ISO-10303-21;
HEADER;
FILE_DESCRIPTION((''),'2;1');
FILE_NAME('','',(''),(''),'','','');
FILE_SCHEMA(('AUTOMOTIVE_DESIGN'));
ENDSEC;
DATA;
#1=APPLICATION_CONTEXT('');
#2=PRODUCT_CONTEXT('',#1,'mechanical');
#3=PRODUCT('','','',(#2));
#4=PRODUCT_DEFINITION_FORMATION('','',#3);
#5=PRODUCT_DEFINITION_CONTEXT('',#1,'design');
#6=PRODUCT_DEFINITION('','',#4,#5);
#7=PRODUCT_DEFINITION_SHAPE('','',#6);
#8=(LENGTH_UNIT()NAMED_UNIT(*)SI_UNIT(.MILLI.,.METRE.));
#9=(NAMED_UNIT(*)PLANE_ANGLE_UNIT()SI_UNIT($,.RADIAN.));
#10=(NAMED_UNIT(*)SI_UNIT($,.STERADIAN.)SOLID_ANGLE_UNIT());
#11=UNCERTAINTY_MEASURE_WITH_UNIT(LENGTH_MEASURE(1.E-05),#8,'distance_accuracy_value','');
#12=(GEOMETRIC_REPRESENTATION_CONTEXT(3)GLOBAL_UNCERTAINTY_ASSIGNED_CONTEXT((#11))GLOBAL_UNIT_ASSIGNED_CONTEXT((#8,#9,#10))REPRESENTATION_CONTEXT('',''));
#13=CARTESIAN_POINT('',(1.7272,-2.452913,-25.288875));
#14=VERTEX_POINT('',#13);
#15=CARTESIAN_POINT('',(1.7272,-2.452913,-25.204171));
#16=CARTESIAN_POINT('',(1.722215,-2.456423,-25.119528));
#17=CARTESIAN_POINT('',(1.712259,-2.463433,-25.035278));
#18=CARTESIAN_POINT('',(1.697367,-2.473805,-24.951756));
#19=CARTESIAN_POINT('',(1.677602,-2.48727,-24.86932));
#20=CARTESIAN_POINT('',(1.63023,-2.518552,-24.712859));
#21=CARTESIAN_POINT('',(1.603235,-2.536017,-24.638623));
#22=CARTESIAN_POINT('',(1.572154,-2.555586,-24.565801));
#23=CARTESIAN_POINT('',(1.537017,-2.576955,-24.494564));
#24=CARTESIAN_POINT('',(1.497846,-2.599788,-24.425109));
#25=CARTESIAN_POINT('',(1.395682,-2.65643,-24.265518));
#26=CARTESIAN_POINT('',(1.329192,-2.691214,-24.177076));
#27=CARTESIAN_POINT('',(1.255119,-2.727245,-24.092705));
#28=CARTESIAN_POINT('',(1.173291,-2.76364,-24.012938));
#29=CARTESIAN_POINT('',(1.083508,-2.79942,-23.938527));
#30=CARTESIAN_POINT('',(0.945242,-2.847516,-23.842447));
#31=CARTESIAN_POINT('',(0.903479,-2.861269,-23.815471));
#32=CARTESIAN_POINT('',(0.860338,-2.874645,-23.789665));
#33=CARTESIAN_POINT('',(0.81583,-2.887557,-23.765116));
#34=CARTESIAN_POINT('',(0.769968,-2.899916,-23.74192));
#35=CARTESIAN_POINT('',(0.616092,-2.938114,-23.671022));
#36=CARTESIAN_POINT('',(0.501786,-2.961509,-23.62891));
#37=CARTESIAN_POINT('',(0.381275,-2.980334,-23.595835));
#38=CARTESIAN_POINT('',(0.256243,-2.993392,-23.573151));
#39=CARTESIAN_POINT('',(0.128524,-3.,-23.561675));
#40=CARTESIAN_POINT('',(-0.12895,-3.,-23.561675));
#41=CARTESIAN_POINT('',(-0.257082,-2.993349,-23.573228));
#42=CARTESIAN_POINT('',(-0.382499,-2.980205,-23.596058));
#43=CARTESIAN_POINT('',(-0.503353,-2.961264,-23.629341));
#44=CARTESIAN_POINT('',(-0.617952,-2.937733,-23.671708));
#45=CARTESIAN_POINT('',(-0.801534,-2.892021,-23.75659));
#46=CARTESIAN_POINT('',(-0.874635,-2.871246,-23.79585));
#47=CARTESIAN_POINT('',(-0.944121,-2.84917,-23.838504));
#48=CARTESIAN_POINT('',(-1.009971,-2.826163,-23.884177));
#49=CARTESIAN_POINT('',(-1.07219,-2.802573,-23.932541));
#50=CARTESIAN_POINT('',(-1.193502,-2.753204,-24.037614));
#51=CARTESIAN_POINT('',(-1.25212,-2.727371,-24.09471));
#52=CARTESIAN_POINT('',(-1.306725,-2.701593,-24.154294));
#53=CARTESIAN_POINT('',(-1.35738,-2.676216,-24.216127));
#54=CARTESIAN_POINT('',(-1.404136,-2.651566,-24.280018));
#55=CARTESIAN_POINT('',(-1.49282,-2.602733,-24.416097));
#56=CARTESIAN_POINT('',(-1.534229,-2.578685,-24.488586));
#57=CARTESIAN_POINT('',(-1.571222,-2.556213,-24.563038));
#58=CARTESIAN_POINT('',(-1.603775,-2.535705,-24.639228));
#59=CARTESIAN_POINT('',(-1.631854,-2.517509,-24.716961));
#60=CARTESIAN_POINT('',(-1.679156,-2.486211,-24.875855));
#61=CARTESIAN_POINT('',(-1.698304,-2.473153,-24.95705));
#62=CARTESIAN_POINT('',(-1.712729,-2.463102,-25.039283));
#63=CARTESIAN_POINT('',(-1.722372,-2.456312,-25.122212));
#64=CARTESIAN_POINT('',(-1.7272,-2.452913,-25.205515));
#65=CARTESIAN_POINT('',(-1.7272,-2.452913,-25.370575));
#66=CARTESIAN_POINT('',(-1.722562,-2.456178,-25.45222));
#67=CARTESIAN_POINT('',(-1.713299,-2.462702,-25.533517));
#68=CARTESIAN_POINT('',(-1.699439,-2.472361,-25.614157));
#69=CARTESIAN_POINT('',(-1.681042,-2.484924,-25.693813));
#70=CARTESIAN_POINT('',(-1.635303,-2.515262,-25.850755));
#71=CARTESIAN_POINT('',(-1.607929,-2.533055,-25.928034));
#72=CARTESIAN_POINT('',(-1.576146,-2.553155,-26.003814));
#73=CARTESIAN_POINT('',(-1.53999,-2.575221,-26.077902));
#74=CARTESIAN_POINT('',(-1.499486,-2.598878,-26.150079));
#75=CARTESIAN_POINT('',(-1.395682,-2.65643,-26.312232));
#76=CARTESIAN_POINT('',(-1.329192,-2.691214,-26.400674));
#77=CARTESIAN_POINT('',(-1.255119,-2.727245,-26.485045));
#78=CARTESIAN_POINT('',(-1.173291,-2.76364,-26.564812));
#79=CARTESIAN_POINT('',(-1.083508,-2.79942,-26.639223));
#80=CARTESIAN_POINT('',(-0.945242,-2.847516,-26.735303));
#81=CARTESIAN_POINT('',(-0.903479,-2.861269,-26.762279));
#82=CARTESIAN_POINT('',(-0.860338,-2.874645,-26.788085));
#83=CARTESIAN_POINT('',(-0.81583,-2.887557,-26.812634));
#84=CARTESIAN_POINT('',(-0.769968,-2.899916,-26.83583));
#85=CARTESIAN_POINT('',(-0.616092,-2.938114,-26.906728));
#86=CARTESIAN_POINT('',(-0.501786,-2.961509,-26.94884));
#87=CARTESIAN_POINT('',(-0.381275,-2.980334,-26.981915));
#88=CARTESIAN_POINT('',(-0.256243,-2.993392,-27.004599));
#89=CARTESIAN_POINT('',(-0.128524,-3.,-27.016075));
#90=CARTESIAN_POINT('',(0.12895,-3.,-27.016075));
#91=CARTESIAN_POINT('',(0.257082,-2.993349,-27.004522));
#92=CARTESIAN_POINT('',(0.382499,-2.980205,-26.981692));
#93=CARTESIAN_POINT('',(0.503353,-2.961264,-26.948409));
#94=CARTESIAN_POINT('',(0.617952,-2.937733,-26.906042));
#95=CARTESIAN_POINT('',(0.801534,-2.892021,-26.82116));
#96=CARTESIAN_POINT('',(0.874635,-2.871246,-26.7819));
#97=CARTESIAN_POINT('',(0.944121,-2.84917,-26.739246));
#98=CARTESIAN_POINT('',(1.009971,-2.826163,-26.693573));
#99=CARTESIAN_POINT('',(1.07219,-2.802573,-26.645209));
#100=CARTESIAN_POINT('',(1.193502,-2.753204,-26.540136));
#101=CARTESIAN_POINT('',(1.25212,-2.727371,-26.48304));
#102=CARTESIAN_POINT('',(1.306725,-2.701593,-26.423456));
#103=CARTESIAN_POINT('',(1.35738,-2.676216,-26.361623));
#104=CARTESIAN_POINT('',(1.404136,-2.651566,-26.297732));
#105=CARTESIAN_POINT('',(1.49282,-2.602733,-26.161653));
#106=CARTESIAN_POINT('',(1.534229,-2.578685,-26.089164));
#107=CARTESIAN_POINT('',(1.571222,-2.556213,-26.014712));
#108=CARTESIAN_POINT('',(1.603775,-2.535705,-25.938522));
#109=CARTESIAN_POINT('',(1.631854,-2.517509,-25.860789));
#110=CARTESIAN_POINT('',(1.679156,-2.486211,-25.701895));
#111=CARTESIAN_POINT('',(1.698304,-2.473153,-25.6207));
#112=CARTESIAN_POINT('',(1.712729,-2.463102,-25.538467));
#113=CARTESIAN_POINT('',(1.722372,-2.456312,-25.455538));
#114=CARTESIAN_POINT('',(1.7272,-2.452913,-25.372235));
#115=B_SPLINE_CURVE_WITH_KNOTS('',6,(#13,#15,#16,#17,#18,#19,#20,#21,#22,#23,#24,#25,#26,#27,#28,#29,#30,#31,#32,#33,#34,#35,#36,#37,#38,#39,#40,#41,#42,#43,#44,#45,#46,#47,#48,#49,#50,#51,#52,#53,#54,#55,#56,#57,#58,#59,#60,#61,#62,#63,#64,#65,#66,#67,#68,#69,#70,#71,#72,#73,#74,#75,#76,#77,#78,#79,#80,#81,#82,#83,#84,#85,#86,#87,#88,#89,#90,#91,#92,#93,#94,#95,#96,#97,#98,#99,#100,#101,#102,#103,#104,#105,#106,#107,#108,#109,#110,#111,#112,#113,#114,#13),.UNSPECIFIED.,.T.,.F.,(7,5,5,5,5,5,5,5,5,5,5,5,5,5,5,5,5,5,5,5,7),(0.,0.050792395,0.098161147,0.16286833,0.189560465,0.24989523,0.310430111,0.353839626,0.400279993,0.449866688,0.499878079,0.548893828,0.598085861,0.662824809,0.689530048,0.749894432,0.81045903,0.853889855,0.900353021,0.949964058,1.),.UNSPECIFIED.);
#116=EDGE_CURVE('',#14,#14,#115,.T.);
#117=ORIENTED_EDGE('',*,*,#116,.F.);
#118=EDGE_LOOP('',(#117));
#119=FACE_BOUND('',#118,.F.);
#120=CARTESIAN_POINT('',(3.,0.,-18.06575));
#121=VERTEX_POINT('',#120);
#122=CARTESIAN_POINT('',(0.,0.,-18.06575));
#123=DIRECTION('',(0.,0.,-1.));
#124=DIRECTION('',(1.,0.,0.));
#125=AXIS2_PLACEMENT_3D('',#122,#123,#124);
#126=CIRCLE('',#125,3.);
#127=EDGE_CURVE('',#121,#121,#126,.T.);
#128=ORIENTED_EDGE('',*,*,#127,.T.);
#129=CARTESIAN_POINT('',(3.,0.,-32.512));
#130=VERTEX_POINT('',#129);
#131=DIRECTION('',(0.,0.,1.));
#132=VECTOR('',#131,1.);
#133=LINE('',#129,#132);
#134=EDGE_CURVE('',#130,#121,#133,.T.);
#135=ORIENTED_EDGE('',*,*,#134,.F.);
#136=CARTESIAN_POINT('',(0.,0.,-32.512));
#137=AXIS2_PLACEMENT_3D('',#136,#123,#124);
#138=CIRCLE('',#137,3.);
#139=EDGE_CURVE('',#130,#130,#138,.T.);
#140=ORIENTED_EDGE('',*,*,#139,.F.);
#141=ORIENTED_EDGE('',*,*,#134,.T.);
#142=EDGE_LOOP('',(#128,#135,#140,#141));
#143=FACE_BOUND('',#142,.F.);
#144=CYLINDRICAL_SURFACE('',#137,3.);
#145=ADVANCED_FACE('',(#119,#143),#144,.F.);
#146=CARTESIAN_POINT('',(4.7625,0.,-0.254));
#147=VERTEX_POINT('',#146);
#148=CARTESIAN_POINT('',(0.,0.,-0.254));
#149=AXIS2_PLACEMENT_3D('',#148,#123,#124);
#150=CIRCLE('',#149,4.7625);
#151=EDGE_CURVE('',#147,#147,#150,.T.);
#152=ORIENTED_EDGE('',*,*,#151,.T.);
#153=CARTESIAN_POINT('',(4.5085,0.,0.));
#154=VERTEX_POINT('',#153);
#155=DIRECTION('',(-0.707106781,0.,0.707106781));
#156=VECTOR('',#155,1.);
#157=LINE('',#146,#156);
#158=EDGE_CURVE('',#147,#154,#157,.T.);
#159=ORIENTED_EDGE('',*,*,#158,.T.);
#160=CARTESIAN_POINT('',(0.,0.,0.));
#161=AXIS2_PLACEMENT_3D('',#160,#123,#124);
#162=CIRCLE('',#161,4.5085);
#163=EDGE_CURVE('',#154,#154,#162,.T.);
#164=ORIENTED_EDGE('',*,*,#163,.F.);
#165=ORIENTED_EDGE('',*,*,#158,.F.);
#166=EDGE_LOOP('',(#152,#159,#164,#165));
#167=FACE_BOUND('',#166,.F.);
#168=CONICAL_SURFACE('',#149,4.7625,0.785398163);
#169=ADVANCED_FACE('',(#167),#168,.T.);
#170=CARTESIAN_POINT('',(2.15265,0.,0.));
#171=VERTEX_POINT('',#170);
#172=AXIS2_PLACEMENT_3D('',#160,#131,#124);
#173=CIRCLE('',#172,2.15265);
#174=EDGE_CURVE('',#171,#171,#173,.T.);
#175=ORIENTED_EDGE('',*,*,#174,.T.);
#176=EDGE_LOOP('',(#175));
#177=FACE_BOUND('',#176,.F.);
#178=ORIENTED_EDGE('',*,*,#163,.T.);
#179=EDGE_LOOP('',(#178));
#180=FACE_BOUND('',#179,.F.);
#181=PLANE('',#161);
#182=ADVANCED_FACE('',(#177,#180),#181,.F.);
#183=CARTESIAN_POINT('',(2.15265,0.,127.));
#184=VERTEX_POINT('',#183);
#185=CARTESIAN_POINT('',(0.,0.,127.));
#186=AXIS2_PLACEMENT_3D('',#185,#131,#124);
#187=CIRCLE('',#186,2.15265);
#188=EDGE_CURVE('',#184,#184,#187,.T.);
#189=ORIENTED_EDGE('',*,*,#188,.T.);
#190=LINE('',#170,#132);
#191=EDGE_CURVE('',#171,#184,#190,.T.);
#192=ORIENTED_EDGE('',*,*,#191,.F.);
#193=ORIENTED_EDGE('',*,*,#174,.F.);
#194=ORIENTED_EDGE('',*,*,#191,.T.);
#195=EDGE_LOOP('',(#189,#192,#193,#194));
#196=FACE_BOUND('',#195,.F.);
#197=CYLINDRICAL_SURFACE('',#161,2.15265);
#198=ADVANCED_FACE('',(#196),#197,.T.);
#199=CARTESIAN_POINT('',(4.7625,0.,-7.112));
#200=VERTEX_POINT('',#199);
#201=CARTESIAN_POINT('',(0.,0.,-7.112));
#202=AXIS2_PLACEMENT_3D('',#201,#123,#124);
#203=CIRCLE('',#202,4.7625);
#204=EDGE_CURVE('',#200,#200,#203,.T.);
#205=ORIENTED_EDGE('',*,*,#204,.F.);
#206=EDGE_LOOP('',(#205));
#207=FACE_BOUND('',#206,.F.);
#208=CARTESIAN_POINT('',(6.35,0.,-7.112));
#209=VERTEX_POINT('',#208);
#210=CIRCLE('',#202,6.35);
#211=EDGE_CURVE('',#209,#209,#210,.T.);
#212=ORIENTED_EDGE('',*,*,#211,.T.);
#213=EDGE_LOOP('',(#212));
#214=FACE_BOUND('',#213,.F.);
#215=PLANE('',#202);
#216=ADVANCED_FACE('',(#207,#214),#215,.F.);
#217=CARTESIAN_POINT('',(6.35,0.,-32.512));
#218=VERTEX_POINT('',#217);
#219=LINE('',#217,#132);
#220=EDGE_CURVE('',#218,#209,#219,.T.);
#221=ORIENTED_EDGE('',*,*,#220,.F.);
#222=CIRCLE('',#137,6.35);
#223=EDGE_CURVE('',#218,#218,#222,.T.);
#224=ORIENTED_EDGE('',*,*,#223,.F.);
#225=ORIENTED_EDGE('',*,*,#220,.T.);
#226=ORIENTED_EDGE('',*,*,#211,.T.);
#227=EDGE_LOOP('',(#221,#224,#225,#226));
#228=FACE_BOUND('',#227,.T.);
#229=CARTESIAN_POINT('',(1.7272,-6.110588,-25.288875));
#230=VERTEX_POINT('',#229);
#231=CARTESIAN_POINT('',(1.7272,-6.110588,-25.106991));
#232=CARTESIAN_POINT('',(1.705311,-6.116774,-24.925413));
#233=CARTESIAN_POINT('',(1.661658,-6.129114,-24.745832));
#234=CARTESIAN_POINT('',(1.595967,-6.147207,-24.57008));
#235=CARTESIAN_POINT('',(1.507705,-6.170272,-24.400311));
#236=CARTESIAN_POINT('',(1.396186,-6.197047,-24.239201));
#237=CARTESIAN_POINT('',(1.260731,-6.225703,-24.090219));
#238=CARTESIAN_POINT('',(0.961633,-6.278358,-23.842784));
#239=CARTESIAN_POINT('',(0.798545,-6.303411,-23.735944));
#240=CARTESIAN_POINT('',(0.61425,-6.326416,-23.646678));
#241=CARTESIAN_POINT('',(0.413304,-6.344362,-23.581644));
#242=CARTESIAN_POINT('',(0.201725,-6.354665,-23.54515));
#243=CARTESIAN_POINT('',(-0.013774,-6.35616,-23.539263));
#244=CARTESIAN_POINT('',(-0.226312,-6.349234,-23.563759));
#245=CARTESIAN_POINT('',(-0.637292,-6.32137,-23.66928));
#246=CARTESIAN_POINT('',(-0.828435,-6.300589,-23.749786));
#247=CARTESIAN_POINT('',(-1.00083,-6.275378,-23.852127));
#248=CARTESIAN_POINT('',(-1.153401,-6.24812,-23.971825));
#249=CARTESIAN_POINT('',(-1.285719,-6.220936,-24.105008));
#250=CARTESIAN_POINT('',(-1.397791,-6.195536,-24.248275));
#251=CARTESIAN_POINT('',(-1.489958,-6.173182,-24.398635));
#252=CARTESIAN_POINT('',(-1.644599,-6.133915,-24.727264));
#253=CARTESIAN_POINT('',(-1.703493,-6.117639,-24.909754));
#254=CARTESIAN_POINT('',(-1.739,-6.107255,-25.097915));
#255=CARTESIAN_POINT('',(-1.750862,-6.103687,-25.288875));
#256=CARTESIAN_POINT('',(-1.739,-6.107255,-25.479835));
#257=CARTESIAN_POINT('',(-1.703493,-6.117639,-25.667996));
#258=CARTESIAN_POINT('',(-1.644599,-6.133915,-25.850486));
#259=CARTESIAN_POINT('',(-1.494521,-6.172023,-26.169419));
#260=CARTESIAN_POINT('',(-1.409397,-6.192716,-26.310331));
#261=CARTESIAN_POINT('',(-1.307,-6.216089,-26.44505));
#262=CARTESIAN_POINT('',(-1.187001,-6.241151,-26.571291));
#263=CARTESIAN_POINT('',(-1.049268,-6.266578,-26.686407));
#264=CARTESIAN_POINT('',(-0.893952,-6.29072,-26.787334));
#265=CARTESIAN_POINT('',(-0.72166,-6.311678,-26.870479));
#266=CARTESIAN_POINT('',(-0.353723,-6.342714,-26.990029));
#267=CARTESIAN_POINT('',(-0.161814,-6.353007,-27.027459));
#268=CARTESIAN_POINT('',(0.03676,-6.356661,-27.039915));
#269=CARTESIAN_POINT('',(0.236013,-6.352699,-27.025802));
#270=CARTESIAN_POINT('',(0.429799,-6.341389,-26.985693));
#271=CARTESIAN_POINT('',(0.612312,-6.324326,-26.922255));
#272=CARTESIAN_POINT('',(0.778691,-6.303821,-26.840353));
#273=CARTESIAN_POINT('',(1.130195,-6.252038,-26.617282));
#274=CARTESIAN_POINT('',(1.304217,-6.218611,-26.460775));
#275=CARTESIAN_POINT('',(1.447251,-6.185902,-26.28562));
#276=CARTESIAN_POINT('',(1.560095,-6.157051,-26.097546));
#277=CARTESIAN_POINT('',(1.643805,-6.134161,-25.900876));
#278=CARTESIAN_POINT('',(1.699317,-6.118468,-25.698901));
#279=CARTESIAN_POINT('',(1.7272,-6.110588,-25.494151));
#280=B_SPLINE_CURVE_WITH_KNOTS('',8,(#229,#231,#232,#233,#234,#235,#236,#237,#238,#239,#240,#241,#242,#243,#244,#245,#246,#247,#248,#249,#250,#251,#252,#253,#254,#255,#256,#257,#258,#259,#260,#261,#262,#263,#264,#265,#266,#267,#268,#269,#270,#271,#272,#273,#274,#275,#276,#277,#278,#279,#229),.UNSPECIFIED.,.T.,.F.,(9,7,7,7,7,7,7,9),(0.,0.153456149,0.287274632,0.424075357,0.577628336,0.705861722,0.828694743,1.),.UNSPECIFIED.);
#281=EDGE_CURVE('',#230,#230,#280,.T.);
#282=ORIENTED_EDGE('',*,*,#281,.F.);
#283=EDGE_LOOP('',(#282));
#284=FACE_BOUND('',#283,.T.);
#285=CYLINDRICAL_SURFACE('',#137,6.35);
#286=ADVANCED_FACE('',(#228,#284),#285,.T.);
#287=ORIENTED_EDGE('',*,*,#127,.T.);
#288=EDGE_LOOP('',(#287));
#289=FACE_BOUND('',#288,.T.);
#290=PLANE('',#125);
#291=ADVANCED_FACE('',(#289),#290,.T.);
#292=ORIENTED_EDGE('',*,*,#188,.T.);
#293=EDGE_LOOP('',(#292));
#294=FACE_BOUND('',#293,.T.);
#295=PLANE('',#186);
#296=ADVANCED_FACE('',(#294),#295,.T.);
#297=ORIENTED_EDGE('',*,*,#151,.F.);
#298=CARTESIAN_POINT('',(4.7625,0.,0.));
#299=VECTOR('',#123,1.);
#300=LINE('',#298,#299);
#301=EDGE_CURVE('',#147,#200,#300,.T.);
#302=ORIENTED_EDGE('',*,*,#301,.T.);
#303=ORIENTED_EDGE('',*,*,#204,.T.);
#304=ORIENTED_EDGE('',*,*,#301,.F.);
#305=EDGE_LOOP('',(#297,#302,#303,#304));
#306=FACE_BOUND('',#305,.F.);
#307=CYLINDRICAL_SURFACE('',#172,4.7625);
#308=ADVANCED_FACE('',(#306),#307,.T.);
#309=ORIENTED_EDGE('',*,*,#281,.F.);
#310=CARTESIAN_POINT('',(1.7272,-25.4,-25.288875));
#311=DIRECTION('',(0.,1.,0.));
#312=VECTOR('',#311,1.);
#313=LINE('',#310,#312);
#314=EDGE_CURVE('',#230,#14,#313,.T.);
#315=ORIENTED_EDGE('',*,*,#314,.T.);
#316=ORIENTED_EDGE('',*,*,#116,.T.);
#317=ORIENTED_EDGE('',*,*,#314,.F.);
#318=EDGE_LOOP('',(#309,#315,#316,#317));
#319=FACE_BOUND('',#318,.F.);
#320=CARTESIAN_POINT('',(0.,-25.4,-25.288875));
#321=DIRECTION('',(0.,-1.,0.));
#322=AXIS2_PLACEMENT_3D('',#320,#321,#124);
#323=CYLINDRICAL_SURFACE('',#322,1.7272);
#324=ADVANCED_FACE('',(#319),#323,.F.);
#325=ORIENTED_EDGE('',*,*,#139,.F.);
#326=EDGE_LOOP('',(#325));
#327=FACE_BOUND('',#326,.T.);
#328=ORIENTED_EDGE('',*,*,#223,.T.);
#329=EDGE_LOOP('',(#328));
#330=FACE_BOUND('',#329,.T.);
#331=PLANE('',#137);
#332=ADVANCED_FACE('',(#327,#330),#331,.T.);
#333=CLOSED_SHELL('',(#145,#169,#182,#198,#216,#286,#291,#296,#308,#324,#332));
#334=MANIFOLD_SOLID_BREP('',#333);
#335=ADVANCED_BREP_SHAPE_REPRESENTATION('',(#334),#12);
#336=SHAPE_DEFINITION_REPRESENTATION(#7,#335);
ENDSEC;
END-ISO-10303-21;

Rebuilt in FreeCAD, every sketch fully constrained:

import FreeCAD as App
import Part
import Sketcher
from FreeCAD import Vector
Q = App.Units.Quantity


def edges_at(feature, points):
    """Names of the edges that pass closest to the given points."""
    edges = feature.Shape.Edges
    near = lambda p: min(range(len(edges)), key=lambda i: edges[i].distToShape(Part.Vertex(*p))[0])
    return sorted({f"Edge{near(p) + 1}" for p in points})

doc = App.newDocument("Part")
params = doc.addObject("Spreadsheet::Sheet", "Params")
for row, (alias, value) in enumerate([
    ("pad1_length", "5 in"),
    ("sketch2_diameter", "0.375 in"),
    ("pad2_length", "0.28 in"),
    ("sketch3_width", "2 in"),
    ("pad3_length", "1 in"),
    ("pocket1_length", "14.44625 mm"),
    ("sketch5_diameter", "0.136 in"),
    ("pocket2_length", "23.947088 mm"),
    ("sketch6_diameter", "0.5 in"),
    ("sketch6_width", "2 in"),
    ("chamfer_size", "0.01 in"),
], start=1):
    params.set(f"A{row}", alias)
    params.set(f"B{row}", "=" + value)
    params.setAlias(f"B{row}", alias)

body = doc.addObject("PartDesign::Body", "Body")

sketch1 = doc.addObject("Sketcher::SketchObject", "Sketch")
body.addObject(sketch1)
sketch1.AttachmentSupport = (doc.XY_Plane, [""])
sketch1.MapMode = "FlatFace"
sketch1.addGeometry(Part.Circle(Vector(0, 0, 0), Vector(0, 0, 1), 2.15265), False)
sketch1.addConstraint(Sketcher.Constraint("Coincident", 0, 3, -1, 1))
sketch1.addConstraint(Sketcher.Constraint("Diameter", 0, Q("0.1695 in")))
pad1 = doc.addObject("PartDesign::Pad", "Pad")
body.addObject(pad1)
pad1.Profile = sketch1
pad1.setExpression("Length", "Params.pad1_length")

sketch2 = doc.addObject("Sketcher::SketchObject", "Sketch001")
body.addObject(sketch2)
sketch2.AttachmentSupport = (doc.XY_Plane, [""])
sketch2.MapMode = "FlatFace"
sketch2.addGeometry(Part.Circle(Vector(0, 0, 0), Vector(0, 0, 1), 4.7625), False)
sketch2.addConstraint(Sketcher.Constraint("Coincident", 0, 3, -1, 1))
sketch2.addConstraint(Sketcher.Constraint("Diameter", 0, Q("0.375 in")))
sketch2.setExpression("Constraints[1]", "Params.sketch2_diameter")
pad2 = doc.addObject("PartDesign::Pad", "Pad001")
body.addObject(pad2)
pad2.Profile = sketch2
pad2.setExpression("Length", "Params.pad2_length")
pad2.Reversed = True

sketch3 = doc.addObject("Sketcher::SketchObject", "Sketch002")
body.addObject(sketch3)
sketch3.AttachmentSupport = (doc.XY_Plane, [""])
sketch3.MapMode = "FlatFace"
sketch3.AttachmentOffset = App.Placement(Vector(0, 0, -0.28 * 25.4), App.Rotation())
sketch3.addGeometry(Part.LineSegment(Vector(-25.4, -25.4, 0), Vector(-25.4, 25.4, 0)), False)
sketch3.addGeometry(Part.LineSegment(Vector(-25.4, 25.4, 0), Vector(25.4, 25.4, 0)), False)
sketch3.addGeometry(Part.LineSegment(Vector(25.4, 25.4, 0), Vector(25.4, -25.4, 0)), False)
sketch3.addGeometry(Part.LineSegment(Vector(25.4, -25.4, 0), Vector(-25.4, -25.4, 0)), False)
sketch3.addConstraint(Sketcher.Constraint("Coincident", 0, 2, 1, 1))
sketch3.addConstraint(Sketcher.Constraint("Coincident", 1, 2, 2, 1))
sketch3.addConstraint(Sketcher.Constraint("Coincident", 2, 2, 3, 1))
sketch3.addConstraint(Sketcher.Constraint("Coincident", 3, 2, 0, 1))
sketch3.addConstraint(Sketcher.Constraint("Vertical", 0))
sketch3.addConstraint(Sketcher.Constraint("Horizontal", 1))
sketch3.addConstraint(Sketcher.Constraint("Vertical", 2))
sketch3.addConstraint(Sketcher.Constraint("Horizontal", 3))
sketch3.addConstraint(Sketcher.Constraint("Symmetric", 0, 2, 2, 2, -1, 1))
sketch3.addConstraint(Sketcher.Constraint("Equal", 3, 0))
sketch3.addConstraint(Sketcher.Constraint("DistanceX", 1, 1, 1, 2, Q("2 in")))
sketch3.setExpression("Constraints[10]", "Params.sketch3_width")
pad3 = doc.addObject("PartDesign::Pad", "Pad002")
body.addObject(pad3)
pad3.Profile = sketch3
pad3.setExpression("Length", "Params.pad3_length")
pad3.Reversed = True

sketch4 = doc.addObject("Sketcher::SketchObject", "Sketch003")
body.addObject(sketch4)
sketch4.AttachmentSupport = (doc.XY_Plane, [""])
sketch4.MapMode = "FlatFace"
sketch4.AttachmentOffset = App.Placement(Vector(0, 0, -1.28 * 25.4), App.Rotation())
sketch4.addGeometry(Part.Circle(Vector(0, 0, 0), Vector(0, 0, 1), 3), False)
sketch4.addConstraint(Sketcher.Constraint("Coincident", 0, 3, -1, 1))
sketch4.addConstraint(Sketcher.Constraint("Diameter", 0, Q("6 mm")))
pocket1 = doc.addObject("PartDesign::Pocket", "Pocket")
body.addObject(pocket1)
pocket1.Profile = sketch4
pocket1.setExpression("Length", "Params.pocket1_length")
pocket1.Reversed = True

sketch5 = doc.addObject("Sketcher::SketchObject", "Sketch004")
body.addObject(sketch5)
sketch5.AttachmentSupport = (doc.XZ_Plane, [""])
sketch5.MapMode = "FlatFace"
sketch5.AttachmentOffset = App.Placement(Vector(0, 0, 1 * 25.4), App.Rotation())
sketch5.addGeometry(Part.Circle(Vector(0, -25.288875, 0), Vector(0, 0, 1), 1.7272), False)
sketch5.addConstraint(Sketcher.Constraint("PointOnObject", 0, 3, -2))
sketch5.addConstraint(Sketcher.Constraint("Diameter", 0, Q("0.136 in")))
sketch5.addConstraint(Sketcher.Constraint("DistanceY", 0, 3, -1, 1, Q("25.288875 mm")))
sketch5.setExpression("Constraints[1]", "Params.sketch5_diameter")
pocket2 = doc.addObject("PartDesign::Pocket", "Pocket001")
body.addObject(pocket2)
pocket2.Profile = sketch5
pocket2.setExpression("Length", "Params.pocket2_length")

sketch6 = doc.addObject("Sketcher::SketchObject", "Sketch005")
body.addObject(sketch6)
sketch6.AttachmentSupport = (doc.XY_Plane, [""])
sketch6.MapMode = "FlatFace"
sketch6.AttachmentOffset = App.Placement(Vector(0, 0, -1.28 * 25.4), App.Rotation())
sketch6.addGeometry(Part.LineSegment(Vector(-25.4, -25.4, 0), Vector(-25.4, 25.4, 0)), False)
sketch6.addGeometry(Part.LineSegment(Vector(-25.4, 25.4, 0), Vector(25.4, 25.4, 0)), False)
sketch6.addGeometry(Part.LineSegment(Vector(25.4, 25.4, 0), Vector(25.4, -25.4, 0)), False)
sketch6.addGeometry(Part.LineSegment(Vector(25.4, -25.4, 0), Vector(-25.4, -25.4, 0)), False)
sketch6.addGeometry(Part.Circle(Vector(0, 0, 0), Vector(0, 0, 1), 6.35), False)
sketch6.addConstraint(Sketcher.Constraint("Coincident", 0, 2, 1, 1))
sketch6.addConstraint(Sketcher.Constraint("Coincident", 1, 2, 2, 1))
sketch6.addConstraint(Sketcher.Constraint("Coincident", 2, 2, 3, 1))
sketch6.addConstraint(Sketcher.Constraint("Coincident", 3, 2, 0, 1))
sketch6.addConstraint(Sketcher.Constraint("Vertical", 0))
sketch6.addConstraint(Sketcher.Constraint("Horizontal", 1))
sketch6.addConstraint(Sketcher.Constraint("Vertical", 2))
sketch6.addConstraint(Sketcher.Constraint("Horizontal", 3))
sketch6.addConstraint(Sketcher.Constraint("Coincident", 4, 3, -1, 1))
sketch6.addConstraint(Sketcher.Constraint("Symmetric", 0, 2, 2, 2, -1, 1))
sketch6.addConstraint(Sketcher.Constraint("Equal", 3, 0))
sketch6.addConstraint(Sketcher.Constraint("Diameter", 4, Q("0.5 in")))
sketch6.addConstraint(Sketcher.Constraint("DistanceX", 1, 1, 1, 2, Q("2 in")))
sketch6.setExpression("Constraints[11]", "Params.sketch6_diameter")
sketch6.setExpression("Constraints[12]", "Params.sketch6_width")
pocket3 = doc.addObject("PartDesign::Pocket", "Pocket002")
body.addObject(pocket3)
pocket3.Profile = sketch6
pocket3.Type = "ThroughAll"
pocket3.Reversed = True
doc.recompute()

chamfer = doc.addObject("PartDesign::Chamfer", "Chamfer")
body.addObject(chamfer)
chamfer.Base = (pocket3, edges_at(pocket3, [(-4.763, 0, 0)]))
chamfer.setExpression("Size", "Params.chamfer_size")

doc.recompute()
